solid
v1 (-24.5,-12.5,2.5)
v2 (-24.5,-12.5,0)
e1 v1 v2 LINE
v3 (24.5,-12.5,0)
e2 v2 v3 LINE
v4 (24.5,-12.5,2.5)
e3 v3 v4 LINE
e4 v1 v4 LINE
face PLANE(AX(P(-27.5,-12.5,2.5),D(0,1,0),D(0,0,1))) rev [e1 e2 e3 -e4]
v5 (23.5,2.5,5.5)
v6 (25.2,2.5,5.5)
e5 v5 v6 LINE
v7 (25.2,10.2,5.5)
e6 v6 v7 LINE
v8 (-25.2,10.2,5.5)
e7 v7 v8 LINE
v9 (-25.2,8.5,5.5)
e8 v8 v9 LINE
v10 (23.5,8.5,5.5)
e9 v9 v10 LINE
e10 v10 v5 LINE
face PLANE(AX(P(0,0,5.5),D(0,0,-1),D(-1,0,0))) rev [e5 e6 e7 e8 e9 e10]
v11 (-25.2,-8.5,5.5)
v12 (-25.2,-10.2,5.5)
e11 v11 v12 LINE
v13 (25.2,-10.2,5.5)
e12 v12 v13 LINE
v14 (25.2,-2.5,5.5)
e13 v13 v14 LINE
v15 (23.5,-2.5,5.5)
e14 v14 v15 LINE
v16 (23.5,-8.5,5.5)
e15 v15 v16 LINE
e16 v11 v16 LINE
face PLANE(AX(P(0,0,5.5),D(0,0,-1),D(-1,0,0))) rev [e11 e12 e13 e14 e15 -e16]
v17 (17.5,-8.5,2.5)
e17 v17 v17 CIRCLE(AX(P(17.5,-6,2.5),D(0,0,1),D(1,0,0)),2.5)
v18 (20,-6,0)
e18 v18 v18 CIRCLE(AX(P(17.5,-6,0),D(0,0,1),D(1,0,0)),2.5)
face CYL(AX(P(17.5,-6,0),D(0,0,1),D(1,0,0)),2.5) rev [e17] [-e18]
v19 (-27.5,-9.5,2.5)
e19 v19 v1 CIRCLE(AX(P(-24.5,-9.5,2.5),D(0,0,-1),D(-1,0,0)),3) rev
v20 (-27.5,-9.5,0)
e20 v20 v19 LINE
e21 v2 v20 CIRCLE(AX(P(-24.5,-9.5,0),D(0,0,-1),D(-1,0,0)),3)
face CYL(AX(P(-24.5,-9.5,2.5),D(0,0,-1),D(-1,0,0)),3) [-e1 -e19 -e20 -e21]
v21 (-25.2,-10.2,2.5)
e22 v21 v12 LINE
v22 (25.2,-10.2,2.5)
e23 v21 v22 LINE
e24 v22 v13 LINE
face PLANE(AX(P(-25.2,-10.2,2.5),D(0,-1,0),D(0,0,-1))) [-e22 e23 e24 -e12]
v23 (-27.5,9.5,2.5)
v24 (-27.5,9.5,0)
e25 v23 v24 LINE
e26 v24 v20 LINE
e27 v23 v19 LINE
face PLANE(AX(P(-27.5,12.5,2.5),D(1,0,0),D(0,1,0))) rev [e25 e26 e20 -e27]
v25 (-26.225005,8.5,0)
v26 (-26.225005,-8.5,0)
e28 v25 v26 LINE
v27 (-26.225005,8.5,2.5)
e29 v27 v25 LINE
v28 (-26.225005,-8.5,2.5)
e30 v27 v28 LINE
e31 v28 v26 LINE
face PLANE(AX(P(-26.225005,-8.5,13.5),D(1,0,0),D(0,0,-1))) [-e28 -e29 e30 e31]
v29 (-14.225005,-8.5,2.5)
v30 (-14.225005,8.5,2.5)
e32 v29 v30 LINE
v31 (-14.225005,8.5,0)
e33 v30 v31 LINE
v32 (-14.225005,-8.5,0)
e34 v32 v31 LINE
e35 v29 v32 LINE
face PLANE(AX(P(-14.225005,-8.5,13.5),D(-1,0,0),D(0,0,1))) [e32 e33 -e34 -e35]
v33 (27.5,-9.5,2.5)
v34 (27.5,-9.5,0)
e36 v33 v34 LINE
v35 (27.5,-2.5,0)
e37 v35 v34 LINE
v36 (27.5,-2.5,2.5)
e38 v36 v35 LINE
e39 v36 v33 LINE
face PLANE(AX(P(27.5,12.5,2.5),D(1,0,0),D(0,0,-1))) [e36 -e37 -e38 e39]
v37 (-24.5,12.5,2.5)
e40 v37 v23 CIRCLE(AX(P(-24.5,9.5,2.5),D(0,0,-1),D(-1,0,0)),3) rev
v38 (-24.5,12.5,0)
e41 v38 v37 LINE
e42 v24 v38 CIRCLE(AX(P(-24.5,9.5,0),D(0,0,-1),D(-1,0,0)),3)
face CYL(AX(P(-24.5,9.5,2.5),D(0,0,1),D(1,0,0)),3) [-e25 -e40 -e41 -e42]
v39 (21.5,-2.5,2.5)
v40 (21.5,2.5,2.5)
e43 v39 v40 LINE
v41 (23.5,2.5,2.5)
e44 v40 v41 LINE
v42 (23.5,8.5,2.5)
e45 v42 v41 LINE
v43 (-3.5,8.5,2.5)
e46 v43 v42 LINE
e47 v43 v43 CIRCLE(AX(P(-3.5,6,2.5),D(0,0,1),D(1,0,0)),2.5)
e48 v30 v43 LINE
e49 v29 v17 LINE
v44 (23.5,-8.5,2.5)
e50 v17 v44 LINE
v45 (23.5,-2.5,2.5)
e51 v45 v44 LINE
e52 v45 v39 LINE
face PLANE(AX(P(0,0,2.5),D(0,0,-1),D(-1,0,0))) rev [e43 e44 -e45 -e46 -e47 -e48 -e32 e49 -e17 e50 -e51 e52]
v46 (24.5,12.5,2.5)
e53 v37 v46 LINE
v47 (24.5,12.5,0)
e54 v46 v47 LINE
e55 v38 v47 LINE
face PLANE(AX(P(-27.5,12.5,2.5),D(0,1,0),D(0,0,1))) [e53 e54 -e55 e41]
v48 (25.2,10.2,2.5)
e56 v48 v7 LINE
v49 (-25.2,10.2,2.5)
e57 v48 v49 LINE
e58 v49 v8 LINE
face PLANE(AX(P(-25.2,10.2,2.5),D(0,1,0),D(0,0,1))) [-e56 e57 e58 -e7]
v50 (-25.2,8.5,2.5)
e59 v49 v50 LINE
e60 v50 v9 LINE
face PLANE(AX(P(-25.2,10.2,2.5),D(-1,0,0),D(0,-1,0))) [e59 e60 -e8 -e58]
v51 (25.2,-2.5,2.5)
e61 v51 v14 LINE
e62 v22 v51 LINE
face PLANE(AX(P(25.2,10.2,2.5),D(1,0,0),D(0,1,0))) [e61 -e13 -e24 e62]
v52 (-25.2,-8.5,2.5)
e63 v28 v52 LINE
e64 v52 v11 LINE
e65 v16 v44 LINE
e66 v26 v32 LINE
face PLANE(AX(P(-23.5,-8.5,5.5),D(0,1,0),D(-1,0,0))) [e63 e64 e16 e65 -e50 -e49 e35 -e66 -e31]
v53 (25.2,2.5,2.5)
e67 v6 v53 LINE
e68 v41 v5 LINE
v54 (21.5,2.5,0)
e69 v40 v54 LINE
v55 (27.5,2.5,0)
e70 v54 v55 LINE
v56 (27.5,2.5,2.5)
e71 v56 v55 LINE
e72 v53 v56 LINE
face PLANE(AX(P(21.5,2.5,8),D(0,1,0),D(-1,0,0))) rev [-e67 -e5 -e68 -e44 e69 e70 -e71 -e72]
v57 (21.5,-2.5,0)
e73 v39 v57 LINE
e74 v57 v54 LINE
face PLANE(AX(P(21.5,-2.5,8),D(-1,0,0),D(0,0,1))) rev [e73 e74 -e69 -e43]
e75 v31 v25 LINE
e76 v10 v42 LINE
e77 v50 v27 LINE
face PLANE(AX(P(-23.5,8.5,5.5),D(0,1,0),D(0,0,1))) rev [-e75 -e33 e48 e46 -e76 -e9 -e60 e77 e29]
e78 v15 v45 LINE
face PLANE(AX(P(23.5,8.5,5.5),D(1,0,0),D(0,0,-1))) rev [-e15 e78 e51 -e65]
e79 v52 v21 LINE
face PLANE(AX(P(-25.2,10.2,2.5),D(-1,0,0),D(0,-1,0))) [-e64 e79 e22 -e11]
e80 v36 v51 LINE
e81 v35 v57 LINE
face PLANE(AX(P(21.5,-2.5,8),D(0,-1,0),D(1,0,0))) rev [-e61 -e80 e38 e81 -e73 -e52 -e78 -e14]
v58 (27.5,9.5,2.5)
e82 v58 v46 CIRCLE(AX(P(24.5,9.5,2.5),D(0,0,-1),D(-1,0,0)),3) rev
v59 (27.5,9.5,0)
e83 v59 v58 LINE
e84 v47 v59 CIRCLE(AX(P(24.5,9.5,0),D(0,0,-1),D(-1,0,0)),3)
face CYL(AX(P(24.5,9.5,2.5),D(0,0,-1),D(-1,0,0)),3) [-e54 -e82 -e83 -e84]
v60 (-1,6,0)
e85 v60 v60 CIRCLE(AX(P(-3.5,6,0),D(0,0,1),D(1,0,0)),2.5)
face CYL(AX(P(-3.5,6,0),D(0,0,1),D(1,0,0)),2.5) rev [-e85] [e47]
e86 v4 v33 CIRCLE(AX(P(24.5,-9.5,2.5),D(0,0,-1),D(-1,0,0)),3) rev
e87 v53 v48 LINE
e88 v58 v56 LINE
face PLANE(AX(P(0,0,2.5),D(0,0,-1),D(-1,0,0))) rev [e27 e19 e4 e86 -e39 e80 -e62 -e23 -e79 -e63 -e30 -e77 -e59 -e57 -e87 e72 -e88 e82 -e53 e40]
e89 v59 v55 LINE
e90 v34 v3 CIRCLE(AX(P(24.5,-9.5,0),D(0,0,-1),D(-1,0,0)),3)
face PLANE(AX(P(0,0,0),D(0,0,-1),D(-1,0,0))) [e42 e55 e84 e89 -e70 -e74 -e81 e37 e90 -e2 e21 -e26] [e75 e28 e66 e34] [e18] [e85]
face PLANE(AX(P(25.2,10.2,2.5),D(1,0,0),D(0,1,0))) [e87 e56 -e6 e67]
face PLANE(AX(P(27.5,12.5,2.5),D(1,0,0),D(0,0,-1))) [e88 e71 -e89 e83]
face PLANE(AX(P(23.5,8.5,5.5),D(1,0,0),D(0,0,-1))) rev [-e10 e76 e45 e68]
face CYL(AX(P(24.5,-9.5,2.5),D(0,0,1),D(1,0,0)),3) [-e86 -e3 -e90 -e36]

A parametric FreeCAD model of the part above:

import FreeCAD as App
import Part
import Sketcher
Q = App.Units.Quantity


def edges_at(feature, points):
    """Names of the edges that pass closest to the given points."""
    edges = feature.Shape.Edges
    near = lambda p: min(range(len(edges)), key=lambda i: edges[i].distToShape(Part.Vertex(*p))[0])
    return sorted({f"Edge{near(p) + 1}" for p in points})


def add_polygon(sketch, points):
    """Adds a closed chain of lines whose ends are joined by coincident constraints."""
    first, n = sketch.GeometryCount, len(points)
    for a, b in zip(points, points[1:] + points[:1]):
        sketch.addGeometry(Part.LineSegment(App.Vector(*a, 0), App.Vector(*b, 0)), False)
    for i in range(n):
        sketch.addConstraint(Sketcher.Constraint("Coincident", first + i, 2, first + (i + 1) % n, 1))

doc = App.newDocument("Part")
body = doc.addObject("PartDesign::Body", "Body")

sketch1 = body.newObject("Sketcher::SketchObject", "Sketch")
sketch1.AttachmentSupport = (doc.getObject("XY_Plane"), [""])
sketch1.MapMode = "FlatFace"
add_polygon(sketch1, [(-28, 12), (-28, -12), (28, -12), (28, 12)])
sketch1.addConstraint([
    Sketcher.Constraint("Vertical", 0),
    Sketcher.Constraint("Horizontal", 1),
    Sketcher.Constraint("Vertical", 2),
    Sketcher.Constraint("Horizontal", 3),
    Sketcher.Constraint("Symmetric", 0, 2, 2, 2, -1, 1),
    Sketcher.Constraint("DistanceX", 1, 1, 1, 2, Q("55 mm")),
    Sketcher.Constraint("DistanceY", 0, 2, 0, 1, Q("25 mm")),
])
pad1 = body.newObject("PartDesign::Pad", "Pad")
pad1.Profile = sketch1
pad1.Length = 2.5

sketch2 = body.newObject("Sketcher::SketchObject", "Sketch001")
sketch2.AttachmentSupport = (doc.getObject("XY_Plane"), [""])
sketch2.MapMode = "FlatFace"
sketch2.AttachmentOffset = App.Placement(App.Vector(0, 0, 2.5), App.Rotation())
add_polygon(sketch2, [(-26, 10), (-26, -10), (26, -10), (26, 10)])
add_polygon(sketch2, [(24, -8), (-24, -8), (-24, 8), (24, 8)])
sketch2.addConstraint([
    Sketcher.Constraint("Vertical", 0),
    Sketcher.Constraint("Horizontal", 1),
    Sketcher.Constraint("Vertical", 2),
    Sketcher.Constraint("Horizontal", 3),
    Sketcher.Constraint("Horizontal", 4),
    Sketcher.Constraint("Vertical", 5),
    Sketcher.Constraint("Horizontal", 6),
    Sketcher.Constraint("Vertical", 7),
    Sketcher.Constraint("Symmetric", 0, 2, 2, 2, -1, 1),
    Sketcher.Constraint("Symmetric", 4, 2, 6, 2, -1, 1),
    Sketcher.Constraint("DistanceX", 1, 1, 1, 2, Q("51 mm")),
    Sketcher.Constraint("DistanceX", 4, 2, 4, 1, Q("47 mm")),
    Sketcher.Constraint("DistanceY", 0, 2, 0, 1, Q("21 mm")),
    Sketcher.Constraint("DistanceY", 5, 1, 5, 2, Q("17 mm")),
])
pad2 = body.newObject("PartDesign::Pad", "Pad001")
pad2.Profile = sketch2
pad2.Length = 3
doc.recompute()

fillet = body.newObject("PartDesign::Fillet", "Fillet")
fillet.Base = (pad2, edges_at(pad2, [
    (-27.5, -12.5, 1.25),
    (-27.5, 12.5, 1.25),
    (27.5, 12.5, 1.25),
    (27.5, -12.5, 1.25),
]))
fillet.Radius = 3

sketch3 = body.newObject("Sketcher::SketchObject", "Sketch002")
sketch3.AttachmentSupport = (doc.getObject("XY_Plane"), [""])
sketch3.MapMode = "FlatFace"
sketch3.AttachmentOffset = App.Placement(App.Vector(0, 0, 2.5), App.Rotation())
add_polygon(sketch3, [(-26, 8), (-26, -8), (-14, -8), (-14, 8)])
sketch3.addConstraint([
    Sketcher.Constraint("Vertical", 0),
    Sketcher.Constraint("Horizontal", 1),
    Sketcher.Constraint("Vertical", 2),
    Sketcher.Constraint("Horizontal", 3),
    Sketcher.Constraint("DistanceX", 1, 1, 1, 2, Q("12 mm")),
    Sketcher.Constraint("DistanceY", 0, 2, 0, 1, Q("17 mm")),
    Sketcher.Constraint("DistanceY", 0, 2, -1, 1, Q("8.5 mm")),
    Sketcher.Constraint("DistanceX", 0, 2, -1, 1, Q("26.225005 mm")),
])
pocket1 = body.newObject("PartDesign::Pocket", "Pocket")
pocket1.Profile = sketch3
pocket1.Type = "ThroughAll"
pocket1.Midplane = True

sketch4 = body.newObject("Sketcher::SketchObject", "Sketch003")
sketch4.AttachmentSupport = (doc.getObject("XY_Plane"), [""])
sketch4.MapMode = "FlatFace"
add_polygon(sketch4, [(28, 2), (28, -2), (22, -2), (22, 2)])
sketch4.addConstraint([
    Sketcher.Constraint("Vertical", 0),
    Sketcher.Constraint("Horizontal", 1),
    Sketcher.Constraint("Vertical", 2),
    Sketcher.Constraint("Horizontal", 3),
    Sketcher.Constraint("DistanceX", 1, 2, 1, 1, Q("6 mm")),
    Sketcher.Constraint("DistanceY", 0, 2, 0, 1, Q("5 mm")),
    Sketcher.Constraint("DistanceX", -1, 1, 0, 2, Q("27.5 mm")),
    Sketcher.Constraint("DistanceY", 0, 2, -1, 1, Q("2.5 mm")),
])
pocket2 = body.newObject("PartDesign::Pocket", "Pocket001")
pocket2.Profile = sketch4
pocket2.Length = 8
pocket2.Reversed = True

sketch5 = body.newObject("Sketcher::SketchObject", "Sketch004")
sketch5.AttachmentSupport = (doc.getObject("XY_Plane"), [""])
sketch5.MapMode = "FlatFace"
sketch5.AttachmentOffset = App.Placement(App.Vector(0, 0, 2.5), App.Rotation())
sketch5.addGeometry([
    Part.Circle(App.Vector(-3.5, 6, 0), App.Vector(0, 0, 1), 2.5),
    Part.Circle(App.Vector(17.5, -6, 0), App.Vector(0, 0, 1), 2.5),
], False)
sketch5.addConstraint([
    Sketcher.Constraint("Equal", 0, 1),
    Sketcher.Constraint("Diameter", 0, Q("5 mm")),
    Sketcher.Constraint("DistanceY", -1, 1, 0, 3, Q("6 mm")),
    Sketcher.Constraint("DistanceY", 1, 3, -1, 1, Q("6 mm")),
    Sketcher.Constraint("DistanceX", 0, 3, 1, 3, Q("21 mm")),
    Sketcher.Constraint("DistanceX", 0, 3, -1, 1, Q("3.5 mm")),
])
pocket3 = body.newObject("PartDesign::Pocket", "Pocket002")
pocket3.Profile = sketch5
pocket3.Type = "ThroughAll"

sketch6 = body.newObject("Sketcher::SketchObject", "Sketch005")
sketch6.AttachmentSupport = (doc.getObject("XY_Plane"), [""])
sketch6.MapMode = "FlatFace"
sketch6.AttachmentOffset = App.Placement(App.Vector(0, 0, 5.5), App.Rotation())
add_polygon(sketch6, [(-26, 10), (-26, -10), (26, -10), (26, 10)])
add_polygon(sketch6, [(25, -10), (-25, -10), (-25, 10), (25, 10)])
sketch6.addConstraint([
    Sketcher.Constraint("Vertical", 0),
    Sketcher.Constraint("Horizontal", 1),
    Sketcher.Constraint("Vertical", 2),
    Sketcher.Constraint("Horizontal", 3),
    Sketcher.Constraint("Horizontal", 4),
    Sketcher.Constraint("Vertical", 5),
    Sketcher.Constraint("Horizontal", 6),
    Sketcher.Constraint("Vertical", 7),
    Sketcher.Constraint("Symmetric", 0, 2, 2, 2, -1, 1),
    Sketcher.Constraint("Symmetric", 4, 2, 6, 2, -1, 1),
    Sketcher.Constraint("DistanceX", 1, 1, 1, 2, Q("51 mm")),
    Sketcher.Constraint("DistanceY", 0, 2, 0, 1, Q("21 mm")),
    Sketcher.Constraint("DistanceX", 4, 2, 4, 1, Q("50.4 mm")),
    Sketcher.Constraint("DistanceY", 5, 1, 5, 2, Q("20.4 mm")),
])
pocket4 = body.newObject("PartDesign::Pocket", "Pocket003")
pocket4.Profile = sketch6
pocket4.Length = 3

doc.recompute()
